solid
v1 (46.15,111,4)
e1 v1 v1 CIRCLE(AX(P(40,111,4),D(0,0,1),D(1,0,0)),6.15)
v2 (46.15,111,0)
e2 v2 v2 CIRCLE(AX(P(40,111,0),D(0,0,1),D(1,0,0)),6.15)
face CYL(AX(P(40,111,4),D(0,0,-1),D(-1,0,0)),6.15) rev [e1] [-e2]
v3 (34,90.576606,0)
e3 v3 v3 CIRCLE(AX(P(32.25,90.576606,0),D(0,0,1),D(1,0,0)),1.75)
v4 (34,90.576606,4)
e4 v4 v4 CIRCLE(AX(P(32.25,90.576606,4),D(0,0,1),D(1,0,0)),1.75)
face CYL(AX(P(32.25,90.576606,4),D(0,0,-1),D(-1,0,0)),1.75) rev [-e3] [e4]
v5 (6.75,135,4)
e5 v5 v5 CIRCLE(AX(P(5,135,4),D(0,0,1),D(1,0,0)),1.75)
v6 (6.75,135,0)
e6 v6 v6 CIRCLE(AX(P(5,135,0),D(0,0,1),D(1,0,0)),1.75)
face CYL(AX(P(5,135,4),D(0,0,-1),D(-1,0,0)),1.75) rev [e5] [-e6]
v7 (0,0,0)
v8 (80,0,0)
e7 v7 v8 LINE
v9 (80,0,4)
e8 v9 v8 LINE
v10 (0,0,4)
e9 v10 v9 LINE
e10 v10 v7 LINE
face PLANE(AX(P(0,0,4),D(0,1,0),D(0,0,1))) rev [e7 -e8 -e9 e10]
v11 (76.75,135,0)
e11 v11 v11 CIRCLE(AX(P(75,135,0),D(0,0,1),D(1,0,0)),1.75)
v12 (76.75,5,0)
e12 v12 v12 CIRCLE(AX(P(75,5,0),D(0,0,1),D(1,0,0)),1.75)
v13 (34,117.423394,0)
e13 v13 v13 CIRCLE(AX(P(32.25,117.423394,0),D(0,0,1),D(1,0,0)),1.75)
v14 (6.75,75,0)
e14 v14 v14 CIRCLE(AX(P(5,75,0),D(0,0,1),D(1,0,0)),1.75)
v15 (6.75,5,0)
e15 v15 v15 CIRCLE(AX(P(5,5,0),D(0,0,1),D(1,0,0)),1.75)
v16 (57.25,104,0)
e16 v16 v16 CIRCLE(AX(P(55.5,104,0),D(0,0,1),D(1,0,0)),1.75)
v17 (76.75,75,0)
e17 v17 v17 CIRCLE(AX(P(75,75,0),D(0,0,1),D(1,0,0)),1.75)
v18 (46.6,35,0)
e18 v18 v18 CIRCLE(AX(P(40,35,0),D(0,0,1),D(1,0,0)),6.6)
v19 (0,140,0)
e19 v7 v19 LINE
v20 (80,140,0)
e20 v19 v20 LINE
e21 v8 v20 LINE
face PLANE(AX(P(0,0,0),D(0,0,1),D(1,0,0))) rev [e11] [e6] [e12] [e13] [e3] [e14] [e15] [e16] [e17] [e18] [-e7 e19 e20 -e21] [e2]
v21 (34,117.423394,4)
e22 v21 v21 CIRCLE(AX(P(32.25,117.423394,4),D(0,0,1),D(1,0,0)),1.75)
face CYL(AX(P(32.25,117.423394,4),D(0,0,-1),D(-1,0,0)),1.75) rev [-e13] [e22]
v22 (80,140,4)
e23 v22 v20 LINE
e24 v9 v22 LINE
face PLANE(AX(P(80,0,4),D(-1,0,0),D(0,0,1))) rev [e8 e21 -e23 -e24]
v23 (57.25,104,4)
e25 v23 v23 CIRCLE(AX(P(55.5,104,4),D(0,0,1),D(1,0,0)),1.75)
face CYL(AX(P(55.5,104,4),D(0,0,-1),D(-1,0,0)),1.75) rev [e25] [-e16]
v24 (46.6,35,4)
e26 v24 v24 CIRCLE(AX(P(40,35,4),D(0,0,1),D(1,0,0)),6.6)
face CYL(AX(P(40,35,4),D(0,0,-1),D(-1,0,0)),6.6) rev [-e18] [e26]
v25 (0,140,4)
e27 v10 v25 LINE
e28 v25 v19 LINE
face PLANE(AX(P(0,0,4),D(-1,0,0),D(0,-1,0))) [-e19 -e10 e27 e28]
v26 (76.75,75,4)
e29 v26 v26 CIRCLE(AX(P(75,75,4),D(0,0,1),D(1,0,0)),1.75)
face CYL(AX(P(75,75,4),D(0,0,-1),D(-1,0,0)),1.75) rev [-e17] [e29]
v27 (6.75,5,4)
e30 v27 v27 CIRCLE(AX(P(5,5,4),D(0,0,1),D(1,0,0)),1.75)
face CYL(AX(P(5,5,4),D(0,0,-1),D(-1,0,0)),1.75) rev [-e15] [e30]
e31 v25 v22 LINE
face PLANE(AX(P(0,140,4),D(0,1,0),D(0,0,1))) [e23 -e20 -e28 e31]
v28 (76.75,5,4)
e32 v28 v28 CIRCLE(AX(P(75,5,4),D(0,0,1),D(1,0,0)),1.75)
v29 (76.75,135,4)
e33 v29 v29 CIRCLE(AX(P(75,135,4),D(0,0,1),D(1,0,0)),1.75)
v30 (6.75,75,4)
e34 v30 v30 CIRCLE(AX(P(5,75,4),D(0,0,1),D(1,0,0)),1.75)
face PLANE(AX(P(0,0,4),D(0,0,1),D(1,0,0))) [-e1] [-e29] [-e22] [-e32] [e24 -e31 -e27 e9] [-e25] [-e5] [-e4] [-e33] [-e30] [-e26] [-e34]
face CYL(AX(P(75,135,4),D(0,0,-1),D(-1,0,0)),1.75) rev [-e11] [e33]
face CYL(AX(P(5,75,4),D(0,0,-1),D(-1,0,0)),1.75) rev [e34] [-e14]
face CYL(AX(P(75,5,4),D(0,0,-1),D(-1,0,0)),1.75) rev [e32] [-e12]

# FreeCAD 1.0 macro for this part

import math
import FreeCAD as App
import Part
import Sketcher

doc = App.newDocument("Part")
params = doc.addObject("Spreadsheet::Sheet", "Params")
for row, (alias, value) in enumerate([
    ("sketch1_diameter", "3.5 mm"),
    ("sketch1_diameter2", "13.2 mm"),
    ("sketch1_width", "80 mm"),
    ("sketch1_height", "140 mm"),
    ("sketch1_radius", "6.15 mm"),
    ("pad1_length", "4 mm"),
], start=1):
    params.set(f"A{row}", alias)
    params.set(f"B{row}", "=" + value)
    params.setAlias(f"B{row}", alias)

body = doc.addObject("PartDesign::Body", "Body")

# Sketch on XY plane
sketch1 = body.newObject("Sketcher::SketchObject", "Sketch")
sketch1.AttachmentSupport = (doc.getObject("XY_Plane"), [""])
sketch1.MapMode = "FlatFace"
sketch1.addGeometry(Part.LineSegment(App.Vector(0, 0, 0), App.Vector(80, 0, 0)), False)
sketch1.addGeometry(Part.LineSegment(App.Vector(80, 0, 0), App.Vector(80, 140, 0)), False)
sketch1.addGeometry(Part.LineSegment(App.Vector(80, 140, 0), App.Vector(0, 140, 0)), False)
sketch1.addGeometry(Part.LineSegment(App.Vector(0, 140, 0), App.Vector(0, 0, 0)), False)
sketch1.addGeometry(Part.Circle(App.Vector(5, 5, 0), App.Vector(0, 0, 1), 1.8), False)
sketch1.addGeometry(Part.Circle(App.Vector(40, 35, 0), App.Vector(0, 0, 1), 6.6), False)
sketch1.addGeometry(Part.Circle(App.Vector(75, 5, 0), App.Vector(0, 0, 1), 1.8), False)
sketch1.addGeometry(Part.Circle(App.Vector(5, 75, 0), App.Vector(0, 0, 1), 1.8), False)
sketch1.addGeometry(Part.Circle(App.Vector(32.2, 90.6, 0), App.Vector(0, 0, 1), 1.8), False)
sketch1.addGeometry(Part.Circle(App.Vector(5, 135, 0), App.Vector(0, 0, 1), 1.8), False)
sketch1.addGeometry(Part.ArcOfCircle(Part.Circle(App.Vector(40, 111, 0), App.Vector(0, 0, 1), 6.2), math.radians(155), math.radians(265)), False)
sketch1.addGeometry(Part.ArcOfCircle(Part.Circle(App.Vector(40, 111, 0), App.Vector(0, 0, 1), 6.2), math.radians(-95), math.radians(155)), False)
sketch1.addGeometry(Part.Circle(App.Vector(32.2, 117.4, 0), App.Vector(0, 0, 1), 1.8), False)
sketch1.addGeometry(Part.Circle(App.Vector(75, 75, 0), App.Vector(0, 0, 1), 1.8), False)
sketch1.addGeometry(Part.Circle(App.Vector(55.5, 104, 0), App.Vector(0, 0, 1), 1.8), False)
sketch1.addGeometry(Part.Circle(App.Vector(75, 135, 0), App.Vector(0, 0, 1), 1.8), False)
sketch1.addConstraint(Sketcher.Constraint("Coincident", 0, 2, 1, 1))
sketch1.addConstraint(Sketcher.Constraint("Coincident", 1, 2, 2, 1))
sketch1.addConstraint(Sketcher.Constraint("Coincident", 2, 2, 3, 1))
sketch1.addConstraint(Sketcher.Constraint("Coincident", 3, 2, 0, 1))
sketch1.addConstraint(Sketcher.Constraint("Tangent", 10, 1, 11, 2))
sketch1.addConstraint(Sketcher.Constraint("Coincident", 11, 1, 10, 2))
sketch1.addConstraint(Sketcher.Constraint("Horizontal", 0))
sketch1.addConstraint(Sketcher.Constraint("Vertical", 1))
sketch1.addConstraint(Sketcher.Constraint("Horizontal", 2))
sketch1.addConstraint(Sketcher.Constraint("Vertical", 3))
sketch1.addConstraint(Sketcher.Constraint("Coincident", 3, 2, -1, 1))
sketch1.addConstraint(Sketcher.Constraint("Equal", 4, 6))
sketch1.addConstraint(Sketcher.Constraint("Equal", 6, 7))
sketch1.addConstraint(Sketcher.Constraint("Equal", 7, 8))
sketch1.addConstraint(Sketcher.Constraint("Equal", 8, 9))
sketch1.addConstraint(Sketcher.Constraint("Equal", 9, 12))
sketch1.addConstraint(Sketcher.Constraint("Equal", 12, 13))
sketch1.addConstraint(Sketcher.Constraint("Equal", 13, 14))
sketch1.addConstraint(Sketcher.Constraint("Equal", 14, 15))
sketch1.addConstraint(Sketcher.Constraint("Horizontal", 4, 3, 6, 3))
sketch1.addConstraint(Sketcher.Constraint("Horizontal", 7, 3, 13, 3))
sketch1.addConstraint(Sketcher.Constraint("Horizontal", 9, 3, 15, 3))
sketch1.addConstraint(Sketcher.Constraint("Vertical", 4, 3, 7, 3))
sketch1.addConstraint(Sketcher.Constraint("Vertical", 7, 3, 9, 3))
sketch1.addConstraint(Sketcher.Constraint("Vertical", 5, 3, 10, 3))
sketch1.addConstraint(Sketcher.Constraint("Vertical", 8, 3, 12, 3))
sketch1.addConstraint(Sketcher.Constraint("Vertical", 6, 3, 13, 3))
sketch1.addConstraint(Sketcher.Constraint("Vertical", 13, 3, 15, 3))
sketch1.addConstraint(Sketcher.Constraint("Diameter", 4, 3.5))
sketch1.addConstraint(Sketcher.Constraint("Diameter", 5, 13.2))
sketch1.addConstraint(Sketcher.Constraint("DistanceX", 0, 1, 0, 2, 80.0))
sketch1.addConstraint(Sketcher.Constraint("DistanceY", 1, 1, 1, 2, 140.0))
sketch1.addConstraint(Sketcher.Constraint("Radius", 10, 6.15))
sketch1.addConstraint(Sketcher.Constraint("DistanceX", -1, 1, 4, 3, 5.0))
sketch1.addConstraint(Sketcher.Constraint("DistanceY", -1, 1, 4, 3, 5.0))
sketch1.addConstraint(Sketcher.Constraint("DistanceX", -1, 1, 5, 3, 40.0))
sketch1.addConstraint(Sketcher.Constraint("DistanceY", -1, 1, 5, 3, 35.0))
sketch1.addConstraint(Sketcher.Constraint("DistanceX", -1, 1, 6, 3, 75.0))
sketch1.addConstraint(Sketcher.Constraint("DistanceY", -1, 1, 7, 3, 75.0))
sketch1.addConstraint(Sketcher.Constraint("DistanceY", -1, 1, 9, 3, 135.0))
sketch1.addConstraint(Sketcher.Constraint("DistanceY", -1, 1, 10, 3, 111.0))
sketch1.addConstraint(Sketcher.Constraint("DistanceY", -1, 1, 14, 3, 104.0))
sketch1.addConstraint(Sketcher.Constraint("DistanceX", -1, 1, 14, 3, 55.5))
sketch1.addConstraint(Sketcher.Constraint("DistanceX", -1, 1, 8, 3, 32.25))
sketch1.addConstraint(Sketcher.Constraint("DistanceX", -1, 1, 10, 1, 34.440448))
sketch1.addConstraint(Sketcher.Constraint("DistanceY", 8, 3, 10, 1, 23.05282))
sketch1.addConstraint(Sketcher.Constraint("DistanceY", 11, 1, 12, 3, 12.55282))
sketch1.addConstraint(Sketcher.Constraint("DistanceY", -1, 1, 12, 3, 117.423394))
sketch1.setExpression("Constraints[28]", "Params.sketch1_diameter")
sketch1.setExpression("Constraints[29]", "Params.sketch1_diameter2")
sketch1.setExpression("Constraints[30]", "Params.sketch1_width")
sketch1.setExpression("Constraints[31]", "Params.sketch1_height")
sketch1.setExpression("Constraints[32]", "Params.sketch1_radius")
pad1 = body.newObject("PartDesign::Pad", "Pad")
pad1.Profile = sketch1
pad1.setExpression("Length", "Params.pad1_length")

doc.recompute()
